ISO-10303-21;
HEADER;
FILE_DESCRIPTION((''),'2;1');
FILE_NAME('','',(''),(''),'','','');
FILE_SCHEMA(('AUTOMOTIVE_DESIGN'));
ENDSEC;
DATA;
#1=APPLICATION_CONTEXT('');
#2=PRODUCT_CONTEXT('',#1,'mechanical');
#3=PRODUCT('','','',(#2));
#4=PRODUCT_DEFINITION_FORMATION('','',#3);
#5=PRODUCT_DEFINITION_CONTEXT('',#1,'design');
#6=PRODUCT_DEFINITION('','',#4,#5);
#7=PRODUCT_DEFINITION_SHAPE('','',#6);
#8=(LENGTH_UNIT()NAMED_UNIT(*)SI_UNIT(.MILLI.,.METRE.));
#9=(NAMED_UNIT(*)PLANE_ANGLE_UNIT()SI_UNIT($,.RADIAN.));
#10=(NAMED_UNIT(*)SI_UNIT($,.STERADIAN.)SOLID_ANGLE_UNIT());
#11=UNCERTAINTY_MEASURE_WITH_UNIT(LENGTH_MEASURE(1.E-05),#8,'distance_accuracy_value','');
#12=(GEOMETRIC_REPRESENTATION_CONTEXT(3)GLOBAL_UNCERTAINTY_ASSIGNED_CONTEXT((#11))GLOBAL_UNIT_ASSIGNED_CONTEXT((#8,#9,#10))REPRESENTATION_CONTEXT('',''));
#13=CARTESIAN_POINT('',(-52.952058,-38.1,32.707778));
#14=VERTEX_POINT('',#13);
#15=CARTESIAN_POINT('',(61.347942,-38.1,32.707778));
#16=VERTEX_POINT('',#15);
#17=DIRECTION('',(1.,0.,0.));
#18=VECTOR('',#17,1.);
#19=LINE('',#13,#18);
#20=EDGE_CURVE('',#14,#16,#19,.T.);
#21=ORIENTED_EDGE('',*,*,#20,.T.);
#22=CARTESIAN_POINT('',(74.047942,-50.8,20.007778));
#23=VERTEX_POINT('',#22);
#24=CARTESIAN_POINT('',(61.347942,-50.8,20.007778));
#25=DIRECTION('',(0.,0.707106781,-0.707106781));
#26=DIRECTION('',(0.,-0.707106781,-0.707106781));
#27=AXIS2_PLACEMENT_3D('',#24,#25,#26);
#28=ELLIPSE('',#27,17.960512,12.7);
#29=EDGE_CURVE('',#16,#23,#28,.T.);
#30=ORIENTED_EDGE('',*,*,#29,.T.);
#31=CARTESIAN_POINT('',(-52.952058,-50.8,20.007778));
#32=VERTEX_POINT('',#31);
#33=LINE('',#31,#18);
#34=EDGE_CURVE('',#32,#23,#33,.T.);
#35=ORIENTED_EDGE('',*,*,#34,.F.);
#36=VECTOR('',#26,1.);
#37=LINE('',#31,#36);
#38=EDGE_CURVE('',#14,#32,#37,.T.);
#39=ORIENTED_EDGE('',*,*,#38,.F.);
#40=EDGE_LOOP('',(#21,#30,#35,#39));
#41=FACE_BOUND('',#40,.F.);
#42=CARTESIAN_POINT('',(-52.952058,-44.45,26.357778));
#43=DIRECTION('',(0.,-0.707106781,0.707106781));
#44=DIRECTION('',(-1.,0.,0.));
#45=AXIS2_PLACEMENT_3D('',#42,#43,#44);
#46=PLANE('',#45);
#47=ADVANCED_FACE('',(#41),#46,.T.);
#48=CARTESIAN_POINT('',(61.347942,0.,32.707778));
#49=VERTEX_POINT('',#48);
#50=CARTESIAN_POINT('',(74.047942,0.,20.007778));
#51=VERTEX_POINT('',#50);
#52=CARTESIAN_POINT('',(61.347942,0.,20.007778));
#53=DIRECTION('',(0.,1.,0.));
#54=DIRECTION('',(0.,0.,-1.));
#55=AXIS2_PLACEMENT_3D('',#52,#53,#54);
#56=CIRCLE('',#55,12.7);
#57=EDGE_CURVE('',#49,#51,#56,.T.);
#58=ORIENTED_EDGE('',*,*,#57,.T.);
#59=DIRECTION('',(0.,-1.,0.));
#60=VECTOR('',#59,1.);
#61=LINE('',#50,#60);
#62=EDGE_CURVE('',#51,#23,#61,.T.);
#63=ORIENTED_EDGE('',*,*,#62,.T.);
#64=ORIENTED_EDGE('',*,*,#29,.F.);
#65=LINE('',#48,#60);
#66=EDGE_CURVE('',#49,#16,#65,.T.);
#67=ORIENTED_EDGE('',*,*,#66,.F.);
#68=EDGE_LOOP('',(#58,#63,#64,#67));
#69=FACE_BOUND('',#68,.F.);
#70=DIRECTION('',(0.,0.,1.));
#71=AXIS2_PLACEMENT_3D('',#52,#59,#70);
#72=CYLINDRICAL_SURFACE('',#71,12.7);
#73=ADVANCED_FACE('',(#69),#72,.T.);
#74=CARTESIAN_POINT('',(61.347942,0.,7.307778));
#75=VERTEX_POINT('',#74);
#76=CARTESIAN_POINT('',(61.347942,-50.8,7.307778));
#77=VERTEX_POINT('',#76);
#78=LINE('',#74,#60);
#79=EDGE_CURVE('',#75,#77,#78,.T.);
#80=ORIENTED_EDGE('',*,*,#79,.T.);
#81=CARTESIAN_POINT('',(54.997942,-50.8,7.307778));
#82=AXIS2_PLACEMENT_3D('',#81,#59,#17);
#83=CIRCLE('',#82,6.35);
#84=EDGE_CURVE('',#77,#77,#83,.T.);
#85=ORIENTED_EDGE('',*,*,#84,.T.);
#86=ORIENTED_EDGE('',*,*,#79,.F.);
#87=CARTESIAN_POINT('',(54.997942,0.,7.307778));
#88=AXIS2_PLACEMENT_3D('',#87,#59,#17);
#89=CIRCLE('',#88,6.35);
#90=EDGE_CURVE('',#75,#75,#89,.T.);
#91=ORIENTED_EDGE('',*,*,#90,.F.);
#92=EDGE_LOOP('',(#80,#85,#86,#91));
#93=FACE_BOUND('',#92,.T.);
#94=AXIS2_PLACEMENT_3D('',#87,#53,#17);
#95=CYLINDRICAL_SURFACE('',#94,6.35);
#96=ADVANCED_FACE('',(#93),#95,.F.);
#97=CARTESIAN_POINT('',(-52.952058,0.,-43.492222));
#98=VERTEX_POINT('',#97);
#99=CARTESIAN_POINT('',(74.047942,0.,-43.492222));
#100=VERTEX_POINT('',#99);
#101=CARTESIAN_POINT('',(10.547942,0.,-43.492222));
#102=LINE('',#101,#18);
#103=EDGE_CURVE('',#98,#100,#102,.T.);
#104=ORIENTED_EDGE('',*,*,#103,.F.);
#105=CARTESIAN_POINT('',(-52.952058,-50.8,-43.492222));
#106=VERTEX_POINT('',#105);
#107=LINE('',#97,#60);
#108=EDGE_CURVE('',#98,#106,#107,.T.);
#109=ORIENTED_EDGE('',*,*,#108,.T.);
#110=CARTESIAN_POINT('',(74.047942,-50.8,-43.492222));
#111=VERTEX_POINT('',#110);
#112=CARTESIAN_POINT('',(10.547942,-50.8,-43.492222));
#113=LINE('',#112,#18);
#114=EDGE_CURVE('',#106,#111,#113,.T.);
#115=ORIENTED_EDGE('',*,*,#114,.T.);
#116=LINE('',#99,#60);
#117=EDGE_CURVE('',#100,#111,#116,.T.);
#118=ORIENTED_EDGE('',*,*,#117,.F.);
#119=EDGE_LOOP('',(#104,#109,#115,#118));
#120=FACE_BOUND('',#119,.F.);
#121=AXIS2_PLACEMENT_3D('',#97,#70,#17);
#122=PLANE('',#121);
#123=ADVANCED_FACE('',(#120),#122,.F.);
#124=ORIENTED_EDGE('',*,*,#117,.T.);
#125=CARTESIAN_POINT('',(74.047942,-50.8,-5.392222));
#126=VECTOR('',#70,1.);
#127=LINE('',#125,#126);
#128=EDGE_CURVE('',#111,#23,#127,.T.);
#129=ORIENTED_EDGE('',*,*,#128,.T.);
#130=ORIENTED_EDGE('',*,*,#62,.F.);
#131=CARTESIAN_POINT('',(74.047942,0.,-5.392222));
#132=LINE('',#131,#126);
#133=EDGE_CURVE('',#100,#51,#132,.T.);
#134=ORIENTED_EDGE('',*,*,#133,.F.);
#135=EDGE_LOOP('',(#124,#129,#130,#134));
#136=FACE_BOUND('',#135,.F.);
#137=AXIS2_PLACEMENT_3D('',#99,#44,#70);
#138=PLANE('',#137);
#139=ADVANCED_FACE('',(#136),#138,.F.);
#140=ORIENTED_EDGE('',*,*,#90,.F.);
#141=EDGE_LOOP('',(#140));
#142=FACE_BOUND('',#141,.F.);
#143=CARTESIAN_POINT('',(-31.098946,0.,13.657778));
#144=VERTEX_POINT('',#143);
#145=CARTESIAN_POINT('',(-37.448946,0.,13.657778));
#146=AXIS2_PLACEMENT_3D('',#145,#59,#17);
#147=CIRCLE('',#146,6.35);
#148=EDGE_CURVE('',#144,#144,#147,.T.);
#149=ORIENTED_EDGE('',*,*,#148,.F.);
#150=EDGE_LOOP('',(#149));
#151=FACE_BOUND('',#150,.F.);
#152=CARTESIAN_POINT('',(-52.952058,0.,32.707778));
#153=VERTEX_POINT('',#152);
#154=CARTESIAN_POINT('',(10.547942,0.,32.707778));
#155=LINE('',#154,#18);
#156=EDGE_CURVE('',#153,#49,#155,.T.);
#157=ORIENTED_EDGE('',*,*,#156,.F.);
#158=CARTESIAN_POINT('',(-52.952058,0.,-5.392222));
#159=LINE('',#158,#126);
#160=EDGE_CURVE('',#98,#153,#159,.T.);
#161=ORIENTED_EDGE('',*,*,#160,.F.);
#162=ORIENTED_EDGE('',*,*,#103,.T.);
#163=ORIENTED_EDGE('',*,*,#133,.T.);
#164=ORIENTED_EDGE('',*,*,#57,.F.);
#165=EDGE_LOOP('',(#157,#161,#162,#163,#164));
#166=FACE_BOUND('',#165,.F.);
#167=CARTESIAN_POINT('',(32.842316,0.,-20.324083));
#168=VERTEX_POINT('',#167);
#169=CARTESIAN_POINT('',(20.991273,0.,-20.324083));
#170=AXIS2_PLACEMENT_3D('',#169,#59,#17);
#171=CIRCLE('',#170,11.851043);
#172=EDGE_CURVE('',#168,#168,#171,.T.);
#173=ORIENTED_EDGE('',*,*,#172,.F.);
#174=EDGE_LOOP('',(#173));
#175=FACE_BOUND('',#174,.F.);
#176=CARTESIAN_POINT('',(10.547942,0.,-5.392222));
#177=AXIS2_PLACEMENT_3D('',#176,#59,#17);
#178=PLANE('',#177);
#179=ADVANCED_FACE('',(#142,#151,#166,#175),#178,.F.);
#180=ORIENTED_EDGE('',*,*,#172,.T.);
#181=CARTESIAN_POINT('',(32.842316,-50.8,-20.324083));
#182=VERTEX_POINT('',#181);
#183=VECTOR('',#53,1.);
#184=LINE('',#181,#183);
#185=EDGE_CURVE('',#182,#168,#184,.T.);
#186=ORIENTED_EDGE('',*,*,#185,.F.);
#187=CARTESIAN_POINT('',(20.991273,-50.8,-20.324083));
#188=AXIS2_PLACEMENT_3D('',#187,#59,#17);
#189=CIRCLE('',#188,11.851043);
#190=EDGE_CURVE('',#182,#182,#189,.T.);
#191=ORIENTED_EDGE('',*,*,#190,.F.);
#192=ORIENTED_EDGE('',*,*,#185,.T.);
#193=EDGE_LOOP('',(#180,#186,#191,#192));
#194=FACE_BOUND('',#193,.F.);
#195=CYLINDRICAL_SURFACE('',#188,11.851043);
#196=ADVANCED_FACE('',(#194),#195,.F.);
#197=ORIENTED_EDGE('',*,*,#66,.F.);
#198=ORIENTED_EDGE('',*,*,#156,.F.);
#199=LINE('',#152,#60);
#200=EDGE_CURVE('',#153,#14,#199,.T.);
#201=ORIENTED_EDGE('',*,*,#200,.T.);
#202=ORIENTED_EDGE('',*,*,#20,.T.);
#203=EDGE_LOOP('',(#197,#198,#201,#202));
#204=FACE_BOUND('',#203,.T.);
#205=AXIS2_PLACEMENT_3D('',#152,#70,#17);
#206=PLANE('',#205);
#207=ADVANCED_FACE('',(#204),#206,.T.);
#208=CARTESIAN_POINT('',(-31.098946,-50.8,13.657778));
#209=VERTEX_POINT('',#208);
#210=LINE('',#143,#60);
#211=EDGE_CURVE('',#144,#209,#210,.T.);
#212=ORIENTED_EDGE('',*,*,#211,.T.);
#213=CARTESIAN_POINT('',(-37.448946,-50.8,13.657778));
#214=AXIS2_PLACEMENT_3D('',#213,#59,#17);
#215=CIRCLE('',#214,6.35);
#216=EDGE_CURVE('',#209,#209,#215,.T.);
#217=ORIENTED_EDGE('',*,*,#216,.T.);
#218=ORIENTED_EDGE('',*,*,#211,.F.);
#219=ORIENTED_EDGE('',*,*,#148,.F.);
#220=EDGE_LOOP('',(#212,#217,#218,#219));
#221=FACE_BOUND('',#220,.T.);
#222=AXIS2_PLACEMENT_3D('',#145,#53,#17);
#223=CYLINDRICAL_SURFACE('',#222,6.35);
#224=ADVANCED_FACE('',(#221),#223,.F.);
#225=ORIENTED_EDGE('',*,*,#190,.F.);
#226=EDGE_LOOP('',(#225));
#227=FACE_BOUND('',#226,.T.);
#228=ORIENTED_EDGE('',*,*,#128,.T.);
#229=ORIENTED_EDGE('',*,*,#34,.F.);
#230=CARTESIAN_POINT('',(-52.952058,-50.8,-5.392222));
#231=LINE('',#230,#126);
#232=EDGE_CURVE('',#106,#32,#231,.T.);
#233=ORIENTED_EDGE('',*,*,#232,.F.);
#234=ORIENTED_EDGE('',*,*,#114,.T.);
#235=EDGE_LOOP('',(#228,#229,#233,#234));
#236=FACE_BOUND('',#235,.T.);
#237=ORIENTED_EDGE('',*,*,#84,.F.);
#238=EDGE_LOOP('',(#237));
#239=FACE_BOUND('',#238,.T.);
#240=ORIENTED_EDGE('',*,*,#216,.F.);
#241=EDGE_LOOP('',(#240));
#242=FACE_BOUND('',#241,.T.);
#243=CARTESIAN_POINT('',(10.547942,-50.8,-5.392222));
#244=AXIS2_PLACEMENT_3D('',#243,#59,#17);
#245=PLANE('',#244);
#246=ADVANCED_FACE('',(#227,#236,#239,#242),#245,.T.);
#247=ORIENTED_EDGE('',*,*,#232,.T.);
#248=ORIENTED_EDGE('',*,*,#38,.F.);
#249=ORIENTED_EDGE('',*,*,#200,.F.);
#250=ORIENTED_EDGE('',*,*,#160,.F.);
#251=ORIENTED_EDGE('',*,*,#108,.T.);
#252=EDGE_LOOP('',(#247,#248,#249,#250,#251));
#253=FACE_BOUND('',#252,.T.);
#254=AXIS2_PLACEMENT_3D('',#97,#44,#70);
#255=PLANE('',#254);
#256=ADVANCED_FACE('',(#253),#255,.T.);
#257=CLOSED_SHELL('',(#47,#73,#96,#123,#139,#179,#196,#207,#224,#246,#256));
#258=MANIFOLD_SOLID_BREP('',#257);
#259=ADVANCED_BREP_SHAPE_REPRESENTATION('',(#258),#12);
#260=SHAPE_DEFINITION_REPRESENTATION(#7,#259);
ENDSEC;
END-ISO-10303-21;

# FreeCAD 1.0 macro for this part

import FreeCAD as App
import Part
import Sketcher

V = App.Vector
Q = App.Units.Quantity


def edges_at(feature, points):
    """Names of the edges that pass closest to the given points."""
    edges = feature.Shape.Edges
    near = lambda p: min(range(len(edges)), key=lambda i: edges[i].distToShape(Part.Vertex(*p))[0])
    return sorted({f"Edge{near(p) + 1}" for p in points})


def add_polygon(sketch, points):
    """Adds a closed chain of lines whose ends are joined by coincident constraints."""
    first, n = sketch.GeometryCount, len(points)
    for a, b in zip(points, points[1:] + points[:1]):
        sketch.addGeometry(Part.LineSegment(App.Vector(*a, 0), App.Vector(*b, 0)), False)
    for i in range(n):
        sketch.addConstraint(Sketcher.Constraint("Coincident", first + i, 2, first + (i + 1) % n, 1))

doc = App.newDocument("Part")
params = doc.addObject("Spreadsheet::Sheet", "Params")
for row, (alias, value) in enumerate([
    ("sketch1_diameter", "0.5 in"),
    ("sketch1_width", "5 in"),
    ("sketch1_height", "3 in"),
    ("pad1_length", "2 in"),
    ("pocket1_length", "2.82 in"),
    ("chamfer_size", "0.5 in"),
    ("fillet_radius", "0.5 in"),
], start=1):
    params.set(f"A{row}", alias)
    params.set(f"B{row}", "=" + value)
    params.setAlias(f"B{row}", alias)

body = doc.addObject("PartDesign::Body", "Body")

sketch1 = body.newObject("Sketcher::SketchObject", "Sketch")
sketch1.AttachmentSupport = (doc.getObject("XZ_Plane"), [""])
sketch1.MapMode = "FlatFace"
add_polygon(sketch1, [(-53, 33), (-53, -43), (74, -43), (74, 33)])
sketch1.addGeometry(Part.Circle(V(55, 7, 0), V(0, 0, 1), 6), False)
sketch1.addGeometry(Part.Circle(V(-37, 14, 0), V(0, 0, 1), 6), False)
sketch1.addConstraint([
    Sketcher.Constraint("Vertical", 0),
    Sketcher.Constraint("Horizontal", 1),
    Sketcher.Constraint("Vertical", 2),
    Sketcher.Constraint("Horizontal", 3),
    Sketcher.Constraint("Equal", 4, 5),
    Sketcher.Constraint("Diameter", 4, Q("0.5 in")),
    Sketcher.Constraint("DistanceX", 1, 1, 1, 2, Q("5 in")),
    Sketcher.Constraint("DistanceY", 0, 2, 0, 1, Q("3 in")),
    Sketcher.Constraint("DistanceY", 0, 2, 4, 3, Q("2 in")),
    Sketcher.Constraint("DistanceY", 4, 3, 5, 3, Q("0.25 in")),
    Sketcher.Constraint("DistanceX", 0, 2, 4, 3, Q("4.25 in")),
    Sketcher.Constraint("DistanceY", 0, 2, -1, 1, 43.492222),
    Sketcher.Constraint("DistanceX", 5, 3, 4, 3, 92.446888),
    Sketcher.Constraint("DistanceX", -1, 1, 4, 3, 54.997942),
])
sketch1.setExpression("Constraints[9]", "Params.sketch1_diameter")
sketch1.setExpression("Constraints[10]", "Params.sketch1_width")
sketch1.setExpression("Constraints[11]", "Params.sketch1_height")
pad1 = body.newObject("PartDesign::Pad", "Pad")
pad1.Profile = sketch1
pad1.setExpression("Length", "Params.pad1_length")

sketch2 = body.newObject("Sketcher::SketchObject", "Sketch001")
sketch2.AttachmentSupport = (doc.getObject("XZ_Plane"), [""])
sketch2.MapMode = "FlatFace"
sketch2.AttachmentOffset = App.Placement(V(0, 0, 2 * 25.4), App.Rotation())
sketch2.addGeometry(Part.Circle(V(21, -20, 0), V(0, 0, 1), 12), False)
sketch2.addConstraint([
    Sketcher.Constraint("Diameter", 0, 23.702086),
    Sketcher.Constraint("DistanceX", -1, 1, 0, 3, 20.991273),
    Sketcher.Constraint("DistanceY", 0, 3, -1, 1, 20.324083),
])
pocket1 = body.newObject("PartDesign::Pocket", "Pocket")
pocket1.Profile = sketch2
pocket1.setExpression("Length", "Params.pocket1_length")
doc.recompute()

chamfer = body.newObject("PartDesign::Chamfer", "Chamfer")
chamfer.Base = (pocket1, edges_at(pocket1, [(10.548, -50.8, 32.708)]))
chamfer.setExpression("Size", "Params.chamfer_size")
doc.recompute()

fillet = body.newObject("PartDesign::Fillet", "Fillet")
fillet.Base = (chamfer, edges_at(chamfer, [(74.048, -19.05, 32.708)]))
fillet.setExpression("Radius", "Params.fillet_radius")

doc.recompute()
